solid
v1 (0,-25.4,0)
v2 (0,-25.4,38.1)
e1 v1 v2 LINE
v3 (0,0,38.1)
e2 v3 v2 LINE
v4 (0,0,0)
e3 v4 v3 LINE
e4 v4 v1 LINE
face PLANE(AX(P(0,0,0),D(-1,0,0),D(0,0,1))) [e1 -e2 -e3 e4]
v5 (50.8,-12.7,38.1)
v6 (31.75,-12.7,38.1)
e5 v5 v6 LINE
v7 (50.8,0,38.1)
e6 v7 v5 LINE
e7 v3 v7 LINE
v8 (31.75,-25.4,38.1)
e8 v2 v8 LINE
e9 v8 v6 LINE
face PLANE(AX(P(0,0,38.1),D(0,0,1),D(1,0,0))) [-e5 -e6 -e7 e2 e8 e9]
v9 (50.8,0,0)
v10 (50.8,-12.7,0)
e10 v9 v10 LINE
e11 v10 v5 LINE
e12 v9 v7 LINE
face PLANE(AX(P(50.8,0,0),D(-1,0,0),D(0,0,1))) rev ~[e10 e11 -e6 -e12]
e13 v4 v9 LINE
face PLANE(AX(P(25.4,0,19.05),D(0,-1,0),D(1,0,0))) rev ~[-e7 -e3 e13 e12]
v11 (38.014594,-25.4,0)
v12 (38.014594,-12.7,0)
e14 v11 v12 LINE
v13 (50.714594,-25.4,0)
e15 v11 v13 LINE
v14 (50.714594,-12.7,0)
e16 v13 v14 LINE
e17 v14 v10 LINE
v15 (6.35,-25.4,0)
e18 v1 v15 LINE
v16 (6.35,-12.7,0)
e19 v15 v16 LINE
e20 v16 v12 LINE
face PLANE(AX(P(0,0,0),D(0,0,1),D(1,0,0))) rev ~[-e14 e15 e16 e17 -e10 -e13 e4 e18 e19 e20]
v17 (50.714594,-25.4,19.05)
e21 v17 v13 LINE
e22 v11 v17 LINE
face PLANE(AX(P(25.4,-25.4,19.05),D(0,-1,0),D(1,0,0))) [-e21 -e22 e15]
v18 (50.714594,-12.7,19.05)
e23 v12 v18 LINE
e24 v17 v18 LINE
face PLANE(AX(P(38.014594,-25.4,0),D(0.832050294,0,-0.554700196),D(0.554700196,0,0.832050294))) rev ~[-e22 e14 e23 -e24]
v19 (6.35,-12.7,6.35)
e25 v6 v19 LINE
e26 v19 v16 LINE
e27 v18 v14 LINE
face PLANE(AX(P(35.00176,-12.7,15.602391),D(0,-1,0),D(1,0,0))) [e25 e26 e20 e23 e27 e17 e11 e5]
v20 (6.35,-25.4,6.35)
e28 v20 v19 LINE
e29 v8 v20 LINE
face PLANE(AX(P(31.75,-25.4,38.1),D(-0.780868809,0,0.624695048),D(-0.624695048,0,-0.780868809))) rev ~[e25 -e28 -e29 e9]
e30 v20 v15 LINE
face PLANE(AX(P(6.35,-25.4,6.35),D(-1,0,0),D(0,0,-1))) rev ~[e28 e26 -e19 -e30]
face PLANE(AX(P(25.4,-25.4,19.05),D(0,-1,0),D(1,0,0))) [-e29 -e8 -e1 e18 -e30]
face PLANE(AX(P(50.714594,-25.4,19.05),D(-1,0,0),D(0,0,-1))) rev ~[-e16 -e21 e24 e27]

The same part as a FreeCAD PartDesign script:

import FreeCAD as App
import Part
import Sketcher
Q = App.Units.Quantity

doc = App.newDocument("Part")
body = doc.addObject("PartDesign::Body", "Body")

sketch1 = body.newObject("Sketcher::SketchObject", "Sketch")
sketch1.AttachmentSupport = (doc.getObject("XZ_Plane"), [""])
sketch1.MapMode = "FlatFace"
sketch1.addGeometry(Part.LineSegment(App.Vector(0, 38, 0), App.Vector(0, 0, 0)), False)
sketch1.addGeometry(Part.LineSegment(App.Vector(0, 0, 0), App.Vector(51, 0, 0)), False)
sketch1.addGeometry(Part.LineSegment(App.Vector(51, 0, 0), App.Vector(51, 38, 0)), False)
sketch1.addGeometry(Part.LineSegment(App.Vector(51, 38, 0), App.Vector(0, 38, 0)), False)
sketch1.addConstraint(Sketcher.Constraint("Coincident", 0, 2, 1, 1))
sketch1.addConstraint(Sketcher.Constraint("Coincident", 1, 2, 2, 1))
sketch1.addConstraint(Sketcher.Constraint("Coincident", 2, 2, 3, 1))
sketch1.addConstraint(Sketcher.Constraint("Coincident", 3, 2, 0, 1))
sketch1.addConstraint(Sketcher.Constraint("Vertical", 0))
sketch1.addConstraint(Sketcher.Constraint("Horizontal", 1))
sketch1.addConstraint(Sketcher.Constraint("Vertical", 2))
sketch1.addConstraint(Sketcher.Constraint("Horizontal", 3))
sketch1.addConstraint(Sketcher.Constraint("Coincident", 0, 2, -1, 1))
sketch1.addConstraint(Sketcher.Constraint("DistanceX", 1, 1, 1, 2, Q("2 in")))
sketch1.addConstraint(Sketcher.Constraint("DistanceY", 0, 2, 0, 1, Q("1.5 in")))
pad1 = body.newObject("PartDesign::Pad", "Pad")
pad1.Profile = sketch1
pad1.Length = Q("1 in")

sketch2 = body.newObject("Sketcher::SketchObject", "Sketch001")
sketch2.AttachmentSupport = (doc.getObject("XZ_Plane"), [""])
sketch2.MapMode = "FlatFace"
sketch2.AttachmentOffset = App.Placement(App.Vector(0, 0, 1 * 25.4), App.Rotation())
sketch2.addGeometry(Part.LineSegment(App.Vector(6.35, 0, 0), App.Vector(38.01, 0, 0)), False)
sketch2.addGeometry(Part.LineSegment(App.Vector(38.01, 0, 0), App.Vector(50.71, 19.05, 0)), False)
sketch2.addGeometry(Part.LineSegment(App.Vector(50.71, 19.05, 0), App.Vector(50.71, 0, 0)), False)
sketch2.addGeometry(Part.LineSegment(App.Vector(50.71, 0, 0), App.Vector(50.8, 0, 0)), False)
sketch2.addGeometry(Part.LineSegment(App.Vector(50.8, 0, 0), App.Vector(50.8, 38.1, 0)), False)
sketch2.addGeometry(Part.LineSegment(App.Vector(50.8, 38.1, 0), App.Vector(31.75, 38.1, 0)), False)
sketch2.addGeometry(Part.LineSegment(App.Vector(31.75, 38.1, 0), App.Vector(6.35, 6.35, 0)), False)
sketch2.addGeometry(Part.LineSegment(App.Vector(6.35, 6.35, 0), App.Vector(6.35, 0, 0)), False)
sketch2.addConstraint(Sketcher.Constraint("Coincident", 0, 2, 1, 1))
sketch2.addConstraint(Sketcher.Constraint("Coincident", 1, 2, 2, 1))
sketch2.addConstraint(Sketcher.Constraint("Coincident", 2, 2, 3, 1))
sketch2.addConstraint(Sketcher.Constraint("Coincident", 3, 2, 4, 1))
sketch2.addConstraint(Sketcher.Constraint("Coincident", 4, 2, 5, 1))
sketch2.addConstraint(Sketcher.Constraint("Coincident", 5, 2, 6, 1))
sketch2.addConstraint(Sketcher.Constraint("Coincident", 6, 2, 7, 1))
sketch2.addConstraint(Sketcher.Constraint("Coincident", 7, 2, 0, 1))
sketch2.addConstraint(Sketcher.Constraint("Horizontal", 0))
sketch2.addConstraint(Sketcher.Constraint("Vertical", 2))
sketch2.addConstraint(Sketcher.Constraint("Horizontal", 3))
sketch2.addConstraint(Sketcher.Constraint("Vertical", 4))
sketch2.addConstraint(Sketcher.Constraint("Horizontal", 5))
sketch2.addConstraint(Sketcher.Constraint("Vertical", 7))
sketch2.addConstraint(Sketcher.Constraint("PointOnObject", 0, 2, -1))
sketch2.addConstraint(Sketcher.Constraint("PointOnObject", 2, 2, -1))
sketch2.addConstraint(Sketcher.Constraint("Equal", 5, 2))
sketch2.addConstraint(Sketcher.Constraint("DistanceY", 4, 1, 4, 2, Q("1.5 in")))
sketch2.addConstraint(Sketcher.Constraint("DistanceX", -1, 1, 3, 2, Q("2 in")))
sketch2.addConstraint(Sketcher.Constraint("DistanceX", 6, 2, 5, 2, Q("1 in")))
sketch2.addConstraint(Sketcher.Constraint("DistanceX", 5, 2, 5, 1, Q("0.75 in")))
sketch2.addConstraint(Sketcher.Constraint("DistanceY", 7, 2, 7, 1, Q("0.25 in")))
sketch2.addConstraint(Sketcher.Constraint("DistanceX", 0, 2, 1, 2, Q("0.5 in")))
sketch2.addConstraint(Sketcher.Constraint("DistanceX", 0, 1, 0, 2, 31.664594))
pocket1 = body.newObject("PartDesign::Pocket", "Pocket")
pocket1.Profile = sketch2
pocket1.Length = Q("0.5 in")

doc.recompute()
